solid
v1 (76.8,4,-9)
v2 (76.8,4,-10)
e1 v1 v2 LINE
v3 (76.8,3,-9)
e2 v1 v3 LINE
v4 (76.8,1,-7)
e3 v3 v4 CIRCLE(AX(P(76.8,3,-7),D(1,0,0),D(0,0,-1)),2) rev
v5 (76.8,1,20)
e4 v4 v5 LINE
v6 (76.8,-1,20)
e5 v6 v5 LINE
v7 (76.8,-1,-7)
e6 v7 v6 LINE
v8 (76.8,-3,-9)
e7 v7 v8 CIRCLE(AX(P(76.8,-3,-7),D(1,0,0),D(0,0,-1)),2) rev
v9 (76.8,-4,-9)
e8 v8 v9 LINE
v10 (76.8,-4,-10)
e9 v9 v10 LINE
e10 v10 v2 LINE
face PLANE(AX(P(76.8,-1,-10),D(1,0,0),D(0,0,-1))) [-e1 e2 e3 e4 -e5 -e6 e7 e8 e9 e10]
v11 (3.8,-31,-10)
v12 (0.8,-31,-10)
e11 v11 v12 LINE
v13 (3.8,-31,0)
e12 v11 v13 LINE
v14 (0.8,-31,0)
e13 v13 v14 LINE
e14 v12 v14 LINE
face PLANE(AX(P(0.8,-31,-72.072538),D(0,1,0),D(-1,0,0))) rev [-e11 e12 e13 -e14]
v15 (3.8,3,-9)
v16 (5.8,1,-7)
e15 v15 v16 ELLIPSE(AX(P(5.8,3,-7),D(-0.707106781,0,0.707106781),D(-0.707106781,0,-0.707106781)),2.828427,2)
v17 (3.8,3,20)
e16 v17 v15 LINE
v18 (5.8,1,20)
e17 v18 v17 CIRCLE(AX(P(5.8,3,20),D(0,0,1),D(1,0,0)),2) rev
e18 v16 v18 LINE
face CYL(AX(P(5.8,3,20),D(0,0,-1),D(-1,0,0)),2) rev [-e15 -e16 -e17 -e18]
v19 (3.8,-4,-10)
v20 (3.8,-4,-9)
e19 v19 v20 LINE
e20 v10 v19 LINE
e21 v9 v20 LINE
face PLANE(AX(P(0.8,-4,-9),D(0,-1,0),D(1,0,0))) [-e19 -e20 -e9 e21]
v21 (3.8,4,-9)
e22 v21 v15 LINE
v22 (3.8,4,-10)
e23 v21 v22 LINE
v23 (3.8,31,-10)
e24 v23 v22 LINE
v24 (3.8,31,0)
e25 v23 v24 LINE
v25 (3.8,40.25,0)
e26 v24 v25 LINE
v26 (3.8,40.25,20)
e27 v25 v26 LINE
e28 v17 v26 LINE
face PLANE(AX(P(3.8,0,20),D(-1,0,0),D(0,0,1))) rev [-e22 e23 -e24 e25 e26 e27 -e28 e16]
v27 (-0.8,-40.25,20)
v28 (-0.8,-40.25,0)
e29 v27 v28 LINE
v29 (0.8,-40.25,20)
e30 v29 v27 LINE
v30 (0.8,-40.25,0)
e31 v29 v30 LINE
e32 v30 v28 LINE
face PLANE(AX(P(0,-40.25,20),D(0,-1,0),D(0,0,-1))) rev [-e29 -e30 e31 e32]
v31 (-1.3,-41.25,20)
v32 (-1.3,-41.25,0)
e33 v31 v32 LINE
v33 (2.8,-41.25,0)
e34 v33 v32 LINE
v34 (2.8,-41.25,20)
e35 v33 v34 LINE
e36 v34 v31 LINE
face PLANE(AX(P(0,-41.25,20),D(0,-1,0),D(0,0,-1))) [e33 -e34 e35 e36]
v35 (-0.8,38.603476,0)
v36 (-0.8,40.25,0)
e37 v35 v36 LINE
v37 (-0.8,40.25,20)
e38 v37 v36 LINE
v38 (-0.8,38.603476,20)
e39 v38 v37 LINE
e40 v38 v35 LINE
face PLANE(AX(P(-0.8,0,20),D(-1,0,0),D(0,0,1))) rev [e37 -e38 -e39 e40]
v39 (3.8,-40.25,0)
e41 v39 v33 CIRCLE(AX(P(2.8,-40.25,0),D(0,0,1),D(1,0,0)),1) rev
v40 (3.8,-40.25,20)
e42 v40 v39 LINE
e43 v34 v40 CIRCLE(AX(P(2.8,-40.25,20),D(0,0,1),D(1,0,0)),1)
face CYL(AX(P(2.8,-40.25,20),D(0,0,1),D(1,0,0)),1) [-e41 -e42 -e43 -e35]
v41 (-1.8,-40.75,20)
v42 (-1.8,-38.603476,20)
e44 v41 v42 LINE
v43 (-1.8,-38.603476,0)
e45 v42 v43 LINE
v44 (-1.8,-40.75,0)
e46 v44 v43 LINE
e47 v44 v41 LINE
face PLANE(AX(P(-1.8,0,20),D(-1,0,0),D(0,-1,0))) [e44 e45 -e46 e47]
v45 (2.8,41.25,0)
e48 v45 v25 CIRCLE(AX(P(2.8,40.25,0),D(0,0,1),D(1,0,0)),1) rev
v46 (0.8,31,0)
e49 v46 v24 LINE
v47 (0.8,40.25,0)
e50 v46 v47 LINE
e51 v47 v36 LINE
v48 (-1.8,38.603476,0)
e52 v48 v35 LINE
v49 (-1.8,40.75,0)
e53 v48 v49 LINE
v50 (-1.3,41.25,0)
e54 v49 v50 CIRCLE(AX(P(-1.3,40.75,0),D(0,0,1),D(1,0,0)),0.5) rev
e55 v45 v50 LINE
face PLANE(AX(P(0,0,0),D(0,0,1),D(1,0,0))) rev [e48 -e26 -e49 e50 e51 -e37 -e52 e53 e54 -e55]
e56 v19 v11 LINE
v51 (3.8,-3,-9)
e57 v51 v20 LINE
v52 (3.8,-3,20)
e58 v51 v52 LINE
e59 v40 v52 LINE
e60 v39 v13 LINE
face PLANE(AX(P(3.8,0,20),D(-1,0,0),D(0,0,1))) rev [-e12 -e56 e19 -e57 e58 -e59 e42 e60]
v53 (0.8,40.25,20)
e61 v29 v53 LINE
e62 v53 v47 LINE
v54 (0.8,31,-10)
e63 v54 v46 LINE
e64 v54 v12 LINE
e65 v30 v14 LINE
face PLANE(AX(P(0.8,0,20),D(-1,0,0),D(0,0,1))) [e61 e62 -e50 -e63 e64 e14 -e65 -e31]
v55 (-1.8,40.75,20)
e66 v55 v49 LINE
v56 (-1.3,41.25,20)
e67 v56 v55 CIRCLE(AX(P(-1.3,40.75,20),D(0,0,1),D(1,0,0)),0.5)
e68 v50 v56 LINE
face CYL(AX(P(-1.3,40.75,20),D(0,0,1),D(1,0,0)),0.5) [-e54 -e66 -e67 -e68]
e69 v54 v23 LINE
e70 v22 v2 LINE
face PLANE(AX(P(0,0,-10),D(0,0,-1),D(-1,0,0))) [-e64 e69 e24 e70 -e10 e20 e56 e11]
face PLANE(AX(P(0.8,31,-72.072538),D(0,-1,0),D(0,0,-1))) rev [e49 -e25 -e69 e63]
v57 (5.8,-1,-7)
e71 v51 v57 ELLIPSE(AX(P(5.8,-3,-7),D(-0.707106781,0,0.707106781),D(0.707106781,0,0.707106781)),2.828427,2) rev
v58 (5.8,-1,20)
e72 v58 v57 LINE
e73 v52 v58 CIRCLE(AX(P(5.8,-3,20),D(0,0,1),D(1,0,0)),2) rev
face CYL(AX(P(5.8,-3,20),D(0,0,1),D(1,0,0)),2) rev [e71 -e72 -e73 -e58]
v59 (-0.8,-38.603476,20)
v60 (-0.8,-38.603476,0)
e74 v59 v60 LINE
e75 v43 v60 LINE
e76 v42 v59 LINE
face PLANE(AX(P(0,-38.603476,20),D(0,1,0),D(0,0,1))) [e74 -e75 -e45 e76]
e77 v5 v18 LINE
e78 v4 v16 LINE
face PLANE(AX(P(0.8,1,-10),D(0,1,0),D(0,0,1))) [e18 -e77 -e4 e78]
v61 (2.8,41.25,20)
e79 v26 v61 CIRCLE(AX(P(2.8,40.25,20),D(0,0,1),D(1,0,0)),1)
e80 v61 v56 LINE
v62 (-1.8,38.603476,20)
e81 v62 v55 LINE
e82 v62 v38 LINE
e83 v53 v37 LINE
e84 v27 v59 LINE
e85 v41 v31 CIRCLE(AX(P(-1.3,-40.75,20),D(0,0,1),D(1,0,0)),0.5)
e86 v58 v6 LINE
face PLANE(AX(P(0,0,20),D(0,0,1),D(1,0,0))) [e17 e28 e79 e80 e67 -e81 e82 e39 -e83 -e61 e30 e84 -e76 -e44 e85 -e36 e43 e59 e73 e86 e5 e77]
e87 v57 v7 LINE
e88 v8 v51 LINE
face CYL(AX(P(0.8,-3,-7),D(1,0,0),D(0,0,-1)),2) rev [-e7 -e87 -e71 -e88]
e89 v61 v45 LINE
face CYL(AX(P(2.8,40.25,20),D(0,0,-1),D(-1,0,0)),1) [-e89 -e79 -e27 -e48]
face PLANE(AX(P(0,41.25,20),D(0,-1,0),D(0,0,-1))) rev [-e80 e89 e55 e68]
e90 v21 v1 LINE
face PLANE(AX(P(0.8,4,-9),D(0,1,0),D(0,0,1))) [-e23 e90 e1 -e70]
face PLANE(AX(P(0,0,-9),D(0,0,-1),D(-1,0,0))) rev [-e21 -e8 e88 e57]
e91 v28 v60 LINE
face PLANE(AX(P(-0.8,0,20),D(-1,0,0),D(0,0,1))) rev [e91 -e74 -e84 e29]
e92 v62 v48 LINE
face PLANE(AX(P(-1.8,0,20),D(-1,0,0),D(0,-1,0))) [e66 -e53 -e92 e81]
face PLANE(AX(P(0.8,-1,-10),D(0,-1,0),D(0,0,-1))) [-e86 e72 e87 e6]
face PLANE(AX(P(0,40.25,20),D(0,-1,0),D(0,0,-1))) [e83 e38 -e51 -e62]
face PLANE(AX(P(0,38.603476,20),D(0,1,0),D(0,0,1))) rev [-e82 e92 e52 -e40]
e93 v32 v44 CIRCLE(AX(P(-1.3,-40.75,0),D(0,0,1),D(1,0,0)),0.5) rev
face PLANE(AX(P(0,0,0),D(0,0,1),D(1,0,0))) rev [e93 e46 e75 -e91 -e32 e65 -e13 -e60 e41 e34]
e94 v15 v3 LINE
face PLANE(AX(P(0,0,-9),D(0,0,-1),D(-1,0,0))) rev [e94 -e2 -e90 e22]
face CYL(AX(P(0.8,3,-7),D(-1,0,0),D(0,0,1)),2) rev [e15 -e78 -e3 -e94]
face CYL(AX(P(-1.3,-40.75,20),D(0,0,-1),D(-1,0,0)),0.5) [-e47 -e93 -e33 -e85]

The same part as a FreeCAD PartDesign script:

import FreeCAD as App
import Part
import Sketcher

V = App.Vector


def edges_at(feature, points):
    """Names of the edges that pass closest to the given points."""
    edges = feature.Shape.Edges
    near = lambda p: min(range(len(edges)), key=lambda i: edges[i].distToShape(Part.Vertex(*p))[0])
    return sorted({f"Edge{near(p) + 1}" for p in points})

doc = App.newDocument("Part")
body = doc.addObject("PartDesign::Body", "Body")

sketch1 = body.newObject("Sketcher::SketchObject", "Sketch")
sketch1.AttachmentSupport = (doc.getObject("XY_Plane"), [""])
sketch1.MapMode = "FlatFace"
sketch1.addGeometry([
    Part.LineSegment(V(-1.8, -38.6, 0), V(-1.8, -41.2, 0)),
    Part.LineSegment(V(-1.8, -41.2, 0), V(3.8, -41.2, 0)),
    Part.LineSegment(V(3.8, -41.2, 0), V(3.8, 41.2, 0)),
    Part.LineSegment(V(3.8, 41.2, 0), V(-1.8, 41.2, 0)),
    Part.LineSegment(V(-1.8, 41.2, 0), V(-1.8, 38.6, 0)),
    Part.LineSegment(V(-1.8, 38.6, 0), V(-0.8, 38.6, 0)),
    Part.LineSegment(V(-0.8, 38.6, 0), V(-0.8, 40.2, 0)),
    Part.LineSegment(V(-0.8, 40.2, 0), V(0.8, 40.2, 0)),
    Part.LineSegment(V(0.8, 40.2, 0), V(0.8, -40.2, 0)),
    Part.LineSegment(V(0.8, -40.2, 0), V(-0.8, -40.2, 0)),
    Part.LineSegment(V(-0.8, -40.2, 0), V(-0.8, -38.6, 0)),
    Part.LineSegment(V(-0.8, -38.6, 0), V(-1.8, -38.6, 0)),
], False)
sketch1.addConstraint([
    Sketcher.Constraint("Coincident", 0, 2, 1, 1),
    Sketcher.Constraint("Coincident", 1, 2, 2, 1),
    Sketcher.Constraint("Coincident", 2, 2, 3, 1),
    Sketcher.Constraint("Coincident", 3, 2, 4, 1),
    Sketcher.Constraint("Coincident", 4, 2, 5, 1),
    Sketcher.Constraint("Coincident", 5, 2, 6, 1),
    Sketcher.Constraint("Coincident", 6, 2, 7, 1),
    Sketcher.Constraint("Coincident", 7, 2, 8, 1),
    Sketcher.Constraint("Coincident", 8, 2, 9, 1),
    Sketcher.Constraint("Coincident", 9, 2, 10, 1),
    Sketcher.Constraint("Coincident", 10, 2, 11, 1),
    Sketcher.Constraint("Coincident", 11, 2, 0, 1),
    Sketcher.Constraint("Vertical", 0),
    Sketcher.Constraint("Horizontal", 1),
    Sketcher.Constraint("Vertical", 2),
    Sketcher.Constraint("Horizontal", 3),
    Sketcher.Constraint("Vertical", 4),
    Sketcher.Constraint("Horizontal", 5),
    Sketcher.Constraint("Vertical", 6),
    Sketcher.Constraint("Horizontal", 7),
    Sketcher.Constraint("Vertical", 8),
    Sketcher.Constraint("Horizontal", 9),
    Sketcher.Constraint("Vertical", 10),
    Sketcher.Constraint("Horizontal", 11),
    Sketcher.Constraint("Symmetric", 6, 2, 8, 2, -1, 1),
    Sketcher.Constraint("Symmetric", 0, 2, 3, 2, -1),
    Sketcher.Constraint("Symmetric", 5, 2, 10, 2, -1),
    Sketcher.Constraint("DistanceX", 5, 1, 5, 2, 1.0),
    Sketcher.Constraint("DistanceX", 1, 1, 1, 2, 5.6),
    Sketcher.Constraint("DistanceX", 7, 1, 7, 2, 1.6),
    Sketcher.Constraint("DistanceY", 2, 1, 2, 2, 82.5),
    Sketcher.Constraint("DistanceY", 8, 2, 8, 1, 80.5),
    Sketcher.Constraint("DistanceY", 0, 2, 0, 1, 2.646524),
])
pad1 = body.newObject("PartDesign::Pad", "Pad")
pad1.Profile = sketch1
pad1.Length = 20

sketch2 = body.newObject("Sketcher::SketchObject", "Sketch001")
sketch2.AttachmentSupport = (doc.getObject("XY_Plane"), [""])
sketch2.MapMode = "FlatFace"
sketch2.AttachmentOffset = App.Placement(V(0, 0, 20), App.Rotation())
sketch2.addGeometry([
    Part.LineSegment(V(0.8, 1, 0), V(0.8, -1, 0)),
    Part.LineSegment(V(0.8, -1, 0), V(76.8, -1, 0)),
    Part.LineSegment(V(76.8, -1, 0), V(76.8, 1, 0)),
    Part.LineSegment(V(76.8, 1, 0), V(0.8, 1, 0)),
], False)
sketch2.addConstraint([
    Sketcher.Constraint("Coincident", 0, 2, 1, 1),
    Sketcher.Constraint("Coincident", 1, 2, 2, 1),
    Sketcher.Constraint("Coincident", 2, 2, 3, 1),
    Sketcher.Constraint("Coincident", 3, 2, 0, 1),
    Sketcher.Constraint("Vertical", 0),
    Sketcher.Constraint("Horizontal", 1),
    Sketcher.Constraint("Vertical", 2),
    Sketcher.Constraint("Horizontal", 3),
    Sketcher.Constraint("DistanceX", 1, 1, 1, 2, 76.0),
    Sketcher.Constraint("DistanceY", 0, 2, 0, 1, 2.0),
    Sketcher.Constraint("DistanceY", 0, 2, -1, 1, 1.0),
    Sketcher.Constraint("DistanceX", -1, 1, 0, 2, 0.8),
])
pad2 = body.newObject("PartDesign::Pad", "Pad001")
pad2.Profile = sketch2
pad2.Length = 30
pad2.Reversed = True
doc.recompute()

fillet = body.newObject("PartDesign::Fillet", "Fillet")
fillet.Base = (pad2, edges_at(pad2, [(3.8, 41.25, 10), (3.8, -41.25, 10)]))
fillet.Radius = 1
doc.recompute()

fillet2 = body.newObject("PartDesign::Fillet", "Fillet001")
fillet2.Base = (fillet, edges_at(fillet, [(-1.8, 41.25, 10), (-1.8, -41.25, 10)]))
fillet2.Radius = 0.5

sketch3 = body.newObject("Sketcher::SketchObject", "Sketch002")
sketch3.AttachmentSupport = (doc.getObject("XY_Plane"), [""])
sketch3.MapMode = "FlatFace"
sketch3.addGeometry([
    Part.LineSegment(V(0.8, -31, 0), V(0.8, 31, 0)),
    Part.LineSegment(V(0.8, 31, 0), V(3.8, 31, 0)),
    Part.LineSegment(V(3.8, 31, 0), V(3.8, -31, 0)),
    Part.LineSegment(V(3.8, -31, 0), V(0.8, -31, 0)),
], False)
sketch3.addConstraint([
    Sketcher.Constraint("Coincident", 0, 2, 1, 1),
    Sketcher.Constraint("Coincident", 1, 2, 2, 1),
    Sketcher.Constraint("Coincident", 2, 2, 3, 1),
    Sketcher.Constraint("Coincident", 3, 2, 0, 1),
    Sketcher.Constraint("Vertical", 0),
    Sketcher.Constraint("Horizontal", 1),
    Sketcher.Constraint("Vertical", 2),
    Sketcher.Constraint("Horizontal", 3),
    Sketcher.Constraint("DistanceX", 1, 1, 1, 2, 3.0),
    Sketcher.Constraint("DistanceY", 0, 1, 0, 2, 62.0),
    Sketcher.Constraint("DistanceY", -1, 1, 0, 2, 31.0),
    Sketcher.Constraint("DistanceX", -1, 1, 0, 2, 0.8),
])
pad3 = body.newObject("PartDesign::Pad", "Pad002")
pad3.Profile = sketch3
pad3.Length = 10
pad3.Reversed = True

sketch4 = body.newObject("Sketcher::SketchObject", "Sketch003")
sketch4.AttachmentSupport = (doc.getObject("XY_Plane"), [""])
sketch4.MapMode = "FlatFace"
sketch4.AttachmentOffset = App.Placement(V(0, 0, -10), App.Rotation())
sketch4.addGeometry([
    Part.LineSegment(V(1, -4, 0), V(1, 4, 0)),
    Part.LineSegment(V(1, 4, 0), V(77, 4, 0)),
    Part.LineSegment(V(77, 4, 0), V(77, -4, 0)),
    Part.LineSegment(V(77, -4, 0), V(1, -4, 0)),
], False)
sketch4.addConstraint([
    Sketcher.Constraint("Coincident", 0, 2, 1, 1),
    Sketcher.Constraint("Coincident", 1, 2, 2, 1),
    Sketcher.Constraint("Coincident", 2, 2, 3, 1),
    Sketcher.Constraint("Coincident", 3, 2, 0, 1),
    Sketcher.Constraint("Vertical", 0),
    Sketcher.Constraint("Horizontal", 1),
    Sketcher.Constraint("Vertical", 2),
    Sketcher.Constraint("Horizontal", 3),
    Sketcher.Constraint("DistanceX", 1, 1, 1, 2, 76.0),
    Sketcher.Constraint("DistanceY", 0, 1, 0, 2, 8.0),
    Sketcher.Constraint("DistanceY", -1, 1, 0, 2, 4.0),
    Sketcher.Constraint("DistanceX", -1, 1, 0, 2, 0.8),
])
pad4 = body.newObject("PartDesign::Pad", "Pad003")
pad4.Profile = sketch4
pad4.Length = 1
doc.recompute()

fillet3 = body.newObject("PartDesign::Fillet", "Fillet002")
fillet3.Base = (pad4, edges_at(pad4, [
    (3.8, -1, 5.5),
    (40.3, 1, -9),
    (40.3, -1, -9),
    (3.8, 1, 5.5),
]))
fillet3.Radius = 2

doc.recompute()
